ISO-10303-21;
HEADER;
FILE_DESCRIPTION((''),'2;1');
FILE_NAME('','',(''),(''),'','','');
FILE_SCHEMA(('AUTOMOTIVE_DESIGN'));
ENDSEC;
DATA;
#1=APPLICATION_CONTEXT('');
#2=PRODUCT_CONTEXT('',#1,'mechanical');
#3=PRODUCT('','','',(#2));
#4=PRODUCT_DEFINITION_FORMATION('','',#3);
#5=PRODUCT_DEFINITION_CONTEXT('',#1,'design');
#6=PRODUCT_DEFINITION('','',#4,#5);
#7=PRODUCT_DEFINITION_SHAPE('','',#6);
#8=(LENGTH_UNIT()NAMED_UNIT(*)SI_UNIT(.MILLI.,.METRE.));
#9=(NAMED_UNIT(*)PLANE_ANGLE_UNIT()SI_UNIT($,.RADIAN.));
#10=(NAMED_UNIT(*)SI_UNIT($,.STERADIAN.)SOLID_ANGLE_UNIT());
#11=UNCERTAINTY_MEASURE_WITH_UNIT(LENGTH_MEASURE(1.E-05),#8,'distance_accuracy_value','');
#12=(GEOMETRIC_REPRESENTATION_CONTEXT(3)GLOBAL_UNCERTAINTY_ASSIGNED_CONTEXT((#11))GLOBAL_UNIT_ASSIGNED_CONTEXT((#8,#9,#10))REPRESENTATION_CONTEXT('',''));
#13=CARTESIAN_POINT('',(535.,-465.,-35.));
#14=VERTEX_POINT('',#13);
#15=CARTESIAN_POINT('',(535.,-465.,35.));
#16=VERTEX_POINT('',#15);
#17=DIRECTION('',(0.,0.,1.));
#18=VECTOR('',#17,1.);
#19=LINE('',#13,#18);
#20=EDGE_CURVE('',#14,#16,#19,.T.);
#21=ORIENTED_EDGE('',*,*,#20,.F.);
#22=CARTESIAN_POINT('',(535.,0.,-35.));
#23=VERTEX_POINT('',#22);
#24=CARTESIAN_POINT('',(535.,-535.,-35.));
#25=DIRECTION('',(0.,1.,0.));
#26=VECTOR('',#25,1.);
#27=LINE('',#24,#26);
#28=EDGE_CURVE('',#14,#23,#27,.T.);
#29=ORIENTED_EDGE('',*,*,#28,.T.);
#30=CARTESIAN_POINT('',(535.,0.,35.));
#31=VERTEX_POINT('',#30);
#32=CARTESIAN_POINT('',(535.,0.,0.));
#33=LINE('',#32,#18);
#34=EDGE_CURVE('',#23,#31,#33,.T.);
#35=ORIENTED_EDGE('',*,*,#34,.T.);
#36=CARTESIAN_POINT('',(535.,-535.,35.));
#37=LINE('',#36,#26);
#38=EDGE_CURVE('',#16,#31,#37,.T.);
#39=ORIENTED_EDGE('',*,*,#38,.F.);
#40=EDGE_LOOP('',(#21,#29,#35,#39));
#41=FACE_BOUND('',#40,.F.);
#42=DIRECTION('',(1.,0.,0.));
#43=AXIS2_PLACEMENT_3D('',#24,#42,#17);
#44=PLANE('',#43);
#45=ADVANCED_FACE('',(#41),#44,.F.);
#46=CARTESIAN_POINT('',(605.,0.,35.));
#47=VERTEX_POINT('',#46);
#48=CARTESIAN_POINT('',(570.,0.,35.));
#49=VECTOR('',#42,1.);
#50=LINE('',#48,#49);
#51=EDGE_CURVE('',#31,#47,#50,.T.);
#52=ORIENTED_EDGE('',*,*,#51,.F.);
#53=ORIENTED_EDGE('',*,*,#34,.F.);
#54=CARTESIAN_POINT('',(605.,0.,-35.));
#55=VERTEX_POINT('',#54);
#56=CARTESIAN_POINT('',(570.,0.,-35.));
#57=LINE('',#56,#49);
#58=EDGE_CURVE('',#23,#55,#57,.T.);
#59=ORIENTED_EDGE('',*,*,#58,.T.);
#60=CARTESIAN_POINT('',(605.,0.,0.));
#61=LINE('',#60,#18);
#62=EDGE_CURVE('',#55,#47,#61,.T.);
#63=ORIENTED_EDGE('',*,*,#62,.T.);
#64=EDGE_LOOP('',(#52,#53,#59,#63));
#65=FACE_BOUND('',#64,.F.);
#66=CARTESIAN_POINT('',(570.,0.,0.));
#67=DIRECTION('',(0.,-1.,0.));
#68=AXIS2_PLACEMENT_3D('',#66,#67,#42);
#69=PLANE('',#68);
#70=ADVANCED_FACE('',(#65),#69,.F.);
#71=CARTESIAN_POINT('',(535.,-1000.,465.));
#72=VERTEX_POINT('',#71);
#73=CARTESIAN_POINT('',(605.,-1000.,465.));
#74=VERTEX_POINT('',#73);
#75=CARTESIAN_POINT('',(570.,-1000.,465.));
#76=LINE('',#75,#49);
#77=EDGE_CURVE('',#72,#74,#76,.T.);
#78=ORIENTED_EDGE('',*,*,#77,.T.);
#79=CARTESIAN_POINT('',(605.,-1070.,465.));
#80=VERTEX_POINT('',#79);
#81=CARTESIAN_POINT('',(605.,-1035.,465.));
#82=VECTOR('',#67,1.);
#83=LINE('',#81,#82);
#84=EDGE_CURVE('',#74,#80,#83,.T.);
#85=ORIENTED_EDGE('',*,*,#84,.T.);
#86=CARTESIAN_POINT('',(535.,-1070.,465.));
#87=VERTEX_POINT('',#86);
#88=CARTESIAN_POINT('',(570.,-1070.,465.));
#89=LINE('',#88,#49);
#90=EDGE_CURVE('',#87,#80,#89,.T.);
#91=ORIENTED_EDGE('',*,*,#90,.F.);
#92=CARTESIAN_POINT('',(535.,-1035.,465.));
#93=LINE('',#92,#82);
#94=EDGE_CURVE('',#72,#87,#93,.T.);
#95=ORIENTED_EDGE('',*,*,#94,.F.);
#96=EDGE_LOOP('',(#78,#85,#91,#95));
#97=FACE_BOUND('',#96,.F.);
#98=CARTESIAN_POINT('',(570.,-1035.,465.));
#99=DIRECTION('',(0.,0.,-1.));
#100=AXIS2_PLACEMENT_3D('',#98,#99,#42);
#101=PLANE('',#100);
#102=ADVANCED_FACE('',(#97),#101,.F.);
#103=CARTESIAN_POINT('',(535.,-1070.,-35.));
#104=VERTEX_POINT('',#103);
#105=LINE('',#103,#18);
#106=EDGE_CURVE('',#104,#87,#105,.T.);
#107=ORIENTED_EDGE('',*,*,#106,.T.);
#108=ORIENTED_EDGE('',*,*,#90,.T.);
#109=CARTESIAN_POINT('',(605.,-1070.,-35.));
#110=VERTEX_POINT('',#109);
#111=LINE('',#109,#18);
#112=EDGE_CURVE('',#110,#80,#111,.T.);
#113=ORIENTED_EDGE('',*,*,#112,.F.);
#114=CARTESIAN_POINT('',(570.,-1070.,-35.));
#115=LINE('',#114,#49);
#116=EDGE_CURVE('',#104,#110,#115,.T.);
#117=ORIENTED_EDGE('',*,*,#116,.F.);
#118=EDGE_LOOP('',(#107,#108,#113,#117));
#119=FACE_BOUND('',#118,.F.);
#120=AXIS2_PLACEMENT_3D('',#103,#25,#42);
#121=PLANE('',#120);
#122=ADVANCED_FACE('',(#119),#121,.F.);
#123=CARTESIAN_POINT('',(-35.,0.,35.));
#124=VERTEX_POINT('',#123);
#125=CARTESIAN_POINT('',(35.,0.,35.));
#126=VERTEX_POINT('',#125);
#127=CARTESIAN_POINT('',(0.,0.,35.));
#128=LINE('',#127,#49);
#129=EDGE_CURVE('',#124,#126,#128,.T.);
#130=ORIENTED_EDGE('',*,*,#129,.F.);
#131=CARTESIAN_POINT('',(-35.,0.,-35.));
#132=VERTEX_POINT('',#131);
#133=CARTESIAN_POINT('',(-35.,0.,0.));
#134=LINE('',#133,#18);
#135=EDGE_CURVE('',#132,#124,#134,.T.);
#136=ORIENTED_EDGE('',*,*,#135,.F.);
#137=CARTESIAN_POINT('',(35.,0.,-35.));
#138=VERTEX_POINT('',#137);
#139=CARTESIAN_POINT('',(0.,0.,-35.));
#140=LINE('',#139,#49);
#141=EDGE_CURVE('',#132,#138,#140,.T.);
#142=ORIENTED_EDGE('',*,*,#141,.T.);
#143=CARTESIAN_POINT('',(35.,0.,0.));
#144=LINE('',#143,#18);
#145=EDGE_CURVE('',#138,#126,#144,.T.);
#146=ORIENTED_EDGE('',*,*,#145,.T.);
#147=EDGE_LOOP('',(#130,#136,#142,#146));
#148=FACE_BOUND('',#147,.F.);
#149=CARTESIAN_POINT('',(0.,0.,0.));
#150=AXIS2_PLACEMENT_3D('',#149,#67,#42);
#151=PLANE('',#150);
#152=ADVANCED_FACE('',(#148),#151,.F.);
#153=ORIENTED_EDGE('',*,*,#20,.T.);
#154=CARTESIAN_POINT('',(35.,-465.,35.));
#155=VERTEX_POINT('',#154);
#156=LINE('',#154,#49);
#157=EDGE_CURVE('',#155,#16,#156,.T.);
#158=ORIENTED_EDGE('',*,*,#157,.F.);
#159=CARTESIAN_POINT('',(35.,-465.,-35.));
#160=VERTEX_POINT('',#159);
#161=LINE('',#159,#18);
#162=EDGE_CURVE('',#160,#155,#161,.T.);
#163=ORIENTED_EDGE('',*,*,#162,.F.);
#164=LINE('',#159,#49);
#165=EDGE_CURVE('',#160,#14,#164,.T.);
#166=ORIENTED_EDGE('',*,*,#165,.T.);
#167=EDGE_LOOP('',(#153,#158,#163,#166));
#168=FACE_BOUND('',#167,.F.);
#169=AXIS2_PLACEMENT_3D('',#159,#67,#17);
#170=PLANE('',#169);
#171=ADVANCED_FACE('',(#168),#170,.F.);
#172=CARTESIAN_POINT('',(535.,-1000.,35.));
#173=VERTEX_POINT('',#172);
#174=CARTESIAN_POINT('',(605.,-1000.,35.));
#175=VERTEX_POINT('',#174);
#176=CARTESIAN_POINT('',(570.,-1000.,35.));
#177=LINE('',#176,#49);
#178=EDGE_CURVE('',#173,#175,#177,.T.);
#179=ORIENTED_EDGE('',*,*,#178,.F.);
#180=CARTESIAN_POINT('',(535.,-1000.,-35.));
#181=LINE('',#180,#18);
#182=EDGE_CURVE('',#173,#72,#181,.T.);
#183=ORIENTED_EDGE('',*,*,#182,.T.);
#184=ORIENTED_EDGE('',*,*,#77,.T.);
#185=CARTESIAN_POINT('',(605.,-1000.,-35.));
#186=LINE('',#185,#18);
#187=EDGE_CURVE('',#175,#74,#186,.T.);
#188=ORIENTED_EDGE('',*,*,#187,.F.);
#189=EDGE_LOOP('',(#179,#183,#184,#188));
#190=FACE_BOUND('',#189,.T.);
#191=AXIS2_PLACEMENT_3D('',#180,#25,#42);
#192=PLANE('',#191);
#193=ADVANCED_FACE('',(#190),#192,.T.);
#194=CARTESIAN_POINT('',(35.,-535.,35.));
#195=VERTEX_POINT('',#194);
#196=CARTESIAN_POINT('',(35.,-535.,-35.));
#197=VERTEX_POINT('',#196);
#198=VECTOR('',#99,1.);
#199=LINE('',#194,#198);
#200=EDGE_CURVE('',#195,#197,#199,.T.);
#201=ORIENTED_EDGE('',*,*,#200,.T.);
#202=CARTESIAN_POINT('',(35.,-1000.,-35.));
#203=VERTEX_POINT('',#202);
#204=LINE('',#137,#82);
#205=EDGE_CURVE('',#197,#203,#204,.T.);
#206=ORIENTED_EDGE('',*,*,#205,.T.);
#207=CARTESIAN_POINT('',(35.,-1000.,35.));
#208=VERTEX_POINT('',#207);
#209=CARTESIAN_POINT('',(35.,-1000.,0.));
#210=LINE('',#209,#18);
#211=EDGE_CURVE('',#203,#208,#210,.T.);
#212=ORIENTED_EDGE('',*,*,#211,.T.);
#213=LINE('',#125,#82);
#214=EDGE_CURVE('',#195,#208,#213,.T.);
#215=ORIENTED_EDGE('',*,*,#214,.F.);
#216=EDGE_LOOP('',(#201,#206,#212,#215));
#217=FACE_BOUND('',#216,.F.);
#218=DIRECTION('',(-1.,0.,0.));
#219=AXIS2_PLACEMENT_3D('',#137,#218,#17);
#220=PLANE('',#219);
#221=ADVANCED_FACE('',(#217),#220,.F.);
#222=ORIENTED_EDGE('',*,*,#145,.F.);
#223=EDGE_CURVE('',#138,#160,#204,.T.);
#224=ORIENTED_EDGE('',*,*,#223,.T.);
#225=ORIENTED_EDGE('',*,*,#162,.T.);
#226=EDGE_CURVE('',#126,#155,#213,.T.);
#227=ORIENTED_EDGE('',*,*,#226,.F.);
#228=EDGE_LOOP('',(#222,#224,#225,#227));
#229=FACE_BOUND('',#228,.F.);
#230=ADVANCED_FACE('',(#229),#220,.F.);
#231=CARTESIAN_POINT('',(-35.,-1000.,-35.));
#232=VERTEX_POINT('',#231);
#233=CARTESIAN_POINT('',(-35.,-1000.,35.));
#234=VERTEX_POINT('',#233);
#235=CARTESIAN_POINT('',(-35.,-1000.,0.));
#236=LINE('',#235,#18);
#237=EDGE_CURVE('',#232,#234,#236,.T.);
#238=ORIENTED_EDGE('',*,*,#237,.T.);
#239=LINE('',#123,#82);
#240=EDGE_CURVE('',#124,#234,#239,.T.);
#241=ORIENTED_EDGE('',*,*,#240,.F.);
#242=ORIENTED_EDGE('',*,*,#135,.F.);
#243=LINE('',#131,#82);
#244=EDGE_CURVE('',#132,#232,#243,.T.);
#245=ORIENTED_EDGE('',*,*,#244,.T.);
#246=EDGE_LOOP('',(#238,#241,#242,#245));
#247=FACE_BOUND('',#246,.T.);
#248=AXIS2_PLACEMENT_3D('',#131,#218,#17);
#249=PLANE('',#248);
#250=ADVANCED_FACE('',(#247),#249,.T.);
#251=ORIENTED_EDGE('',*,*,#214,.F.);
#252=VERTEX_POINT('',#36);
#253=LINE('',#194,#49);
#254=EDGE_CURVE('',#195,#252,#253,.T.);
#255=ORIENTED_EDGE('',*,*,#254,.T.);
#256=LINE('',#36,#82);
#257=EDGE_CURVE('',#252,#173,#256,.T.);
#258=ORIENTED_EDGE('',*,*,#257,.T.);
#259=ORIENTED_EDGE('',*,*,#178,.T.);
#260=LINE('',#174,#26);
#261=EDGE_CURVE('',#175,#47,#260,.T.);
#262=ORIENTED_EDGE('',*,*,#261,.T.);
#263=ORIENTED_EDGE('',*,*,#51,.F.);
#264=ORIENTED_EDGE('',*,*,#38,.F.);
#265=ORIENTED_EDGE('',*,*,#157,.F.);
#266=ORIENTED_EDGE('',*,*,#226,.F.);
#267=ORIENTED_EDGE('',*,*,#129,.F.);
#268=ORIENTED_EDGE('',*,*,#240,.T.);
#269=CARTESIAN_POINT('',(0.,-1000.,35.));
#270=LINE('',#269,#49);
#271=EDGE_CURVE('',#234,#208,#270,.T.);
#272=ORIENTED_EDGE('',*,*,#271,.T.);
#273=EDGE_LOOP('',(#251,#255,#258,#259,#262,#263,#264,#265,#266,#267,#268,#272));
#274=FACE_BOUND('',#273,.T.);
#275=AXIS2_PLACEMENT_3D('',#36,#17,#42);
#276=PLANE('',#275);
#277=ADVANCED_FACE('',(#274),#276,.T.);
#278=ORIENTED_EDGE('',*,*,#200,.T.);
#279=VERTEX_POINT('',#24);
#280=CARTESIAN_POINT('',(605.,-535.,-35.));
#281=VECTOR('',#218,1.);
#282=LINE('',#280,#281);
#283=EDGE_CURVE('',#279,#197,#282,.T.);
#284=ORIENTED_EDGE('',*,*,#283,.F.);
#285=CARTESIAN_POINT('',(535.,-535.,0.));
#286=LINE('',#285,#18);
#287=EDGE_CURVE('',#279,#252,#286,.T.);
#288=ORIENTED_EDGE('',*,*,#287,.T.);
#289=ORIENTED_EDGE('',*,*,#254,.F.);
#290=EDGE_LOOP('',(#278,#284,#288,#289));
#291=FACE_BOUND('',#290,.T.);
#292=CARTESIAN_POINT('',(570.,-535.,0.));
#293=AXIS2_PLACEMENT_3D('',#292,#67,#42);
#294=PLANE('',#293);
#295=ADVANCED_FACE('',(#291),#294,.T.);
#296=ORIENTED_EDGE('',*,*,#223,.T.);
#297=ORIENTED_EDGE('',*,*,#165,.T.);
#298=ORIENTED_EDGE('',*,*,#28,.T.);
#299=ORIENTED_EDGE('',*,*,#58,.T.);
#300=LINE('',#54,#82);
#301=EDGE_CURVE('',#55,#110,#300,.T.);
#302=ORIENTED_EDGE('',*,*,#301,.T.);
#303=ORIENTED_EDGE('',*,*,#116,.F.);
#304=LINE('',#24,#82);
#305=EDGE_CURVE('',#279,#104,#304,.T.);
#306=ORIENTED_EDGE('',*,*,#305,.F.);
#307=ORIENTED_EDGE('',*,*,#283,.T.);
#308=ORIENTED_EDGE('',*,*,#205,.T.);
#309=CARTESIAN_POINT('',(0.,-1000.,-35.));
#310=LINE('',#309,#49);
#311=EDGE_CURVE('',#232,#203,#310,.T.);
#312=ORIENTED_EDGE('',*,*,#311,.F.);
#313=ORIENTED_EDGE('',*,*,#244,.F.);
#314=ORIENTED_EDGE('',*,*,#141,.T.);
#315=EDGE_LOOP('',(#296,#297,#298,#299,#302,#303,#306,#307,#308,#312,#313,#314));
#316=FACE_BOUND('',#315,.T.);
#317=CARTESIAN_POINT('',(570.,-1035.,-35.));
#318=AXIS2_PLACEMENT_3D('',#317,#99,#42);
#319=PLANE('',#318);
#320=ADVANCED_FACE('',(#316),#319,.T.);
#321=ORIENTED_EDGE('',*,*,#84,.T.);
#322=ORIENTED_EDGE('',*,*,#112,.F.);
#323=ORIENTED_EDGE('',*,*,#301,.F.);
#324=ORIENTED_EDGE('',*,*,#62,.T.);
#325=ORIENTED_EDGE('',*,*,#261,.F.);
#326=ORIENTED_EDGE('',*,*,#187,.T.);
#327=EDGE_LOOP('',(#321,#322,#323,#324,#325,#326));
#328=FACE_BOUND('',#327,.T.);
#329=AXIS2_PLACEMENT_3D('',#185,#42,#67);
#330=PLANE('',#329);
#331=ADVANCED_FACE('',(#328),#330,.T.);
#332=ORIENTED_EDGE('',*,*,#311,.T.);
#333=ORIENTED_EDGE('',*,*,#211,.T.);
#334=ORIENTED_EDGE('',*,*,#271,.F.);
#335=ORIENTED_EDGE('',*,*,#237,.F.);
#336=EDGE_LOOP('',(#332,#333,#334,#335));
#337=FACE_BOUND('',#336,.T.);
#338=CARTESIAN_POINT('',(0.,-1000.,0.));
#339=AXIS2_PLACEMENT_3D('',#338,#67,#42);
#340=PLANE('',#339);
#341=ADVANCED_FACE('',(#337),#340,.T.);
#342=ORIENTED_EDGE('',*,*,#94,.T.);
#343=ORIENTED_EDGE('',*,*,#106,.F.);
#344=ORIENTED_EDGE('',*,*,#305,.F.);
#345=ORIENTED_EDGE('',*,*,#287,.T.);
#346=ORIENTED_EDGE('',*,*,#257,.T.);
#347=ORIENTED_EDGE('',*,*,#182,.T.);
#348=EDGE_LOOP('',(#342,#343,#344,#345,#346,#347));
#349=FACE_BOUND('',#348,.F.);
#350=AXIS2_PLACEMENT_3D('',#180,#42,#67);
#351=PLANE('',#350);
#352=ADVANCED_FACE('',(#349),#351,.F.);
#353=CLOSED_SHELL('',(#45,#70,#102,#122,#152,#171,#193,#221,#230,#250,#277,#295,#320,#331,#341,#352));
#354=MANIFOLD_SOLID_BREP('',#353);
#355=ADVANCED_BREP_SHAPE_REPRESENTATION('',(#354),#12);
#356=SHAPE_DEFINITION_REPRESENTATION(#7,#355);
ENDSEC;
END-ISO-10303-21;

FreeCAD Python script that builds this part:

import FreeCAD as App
import Part
import Sketcher


def add_polygon(sketch, points):
    """Adds a closed chain of lines whose ends are joined by coincident constraints."""
    first, n = sketch.GeometryCount, len(points)
    for a, b in zip(points, points[1:] + points[:1]):
        sketch.addGeometry(Part.LineSegment(App.Vector(*a, 0), App.Vector(*b, 0)), False)
    for i in range(n):
        sketch.addConstraint(Sketcher.Constraint("Coincident", first + i, 2, first + (i + 1) % n, 1))

doc = App.newDocument("Part")
params = doc.addObject("Spreadsheet::Sheet", "Params")
for row, (alias, value) in enumerate([
    ("sketch1_width", "70 mm"),
    ("pad1_length", "1000 mm"),
    ("sketch2_width", "70 mm"),
    ("pad2_length", "500 mm"),
    ("sketch3_width", "70 mm"),
    ("pad3_length", "535 mm"),
    ("sketch4_width", "70 mm"),
    ("pad4_length", "465 mm"),
    ("sketch5_width", "70 mm"),
    ("pad5_length", "500 mm"),
], start=1):
    params.set(f"A{row}", alias)
    params.set(f"B{row}", "=" + value)
    params.setAlias(f"B{row}", alias)

body = doc.addObject("PartDesign::Body", "Body")

# Sketch on XZ plane
sketch1 = doc.addObject("Sketcher::SketchObject", "Sketch")
body.addObject(sketch1)
sketch1.AttachmentSupport = (doc.XZ_Plane, [""])
sketch1.MapMode = "FlatFace"
add_polygon(sketch1, [(-35, 35), (-35, -35), (35, -35), (35, 35)])  # lines 0-3
sketch1.addConstraint([
    Sketcher.Constraint("Vertical", 0),
    Sketcher.Constraint("Horizontal", 1),
    Sketcher.Constraint("Vertical", 2),
    Sketcher.Constraint("Horizontal", 3),
    Sketcher.Constraint("Symmetric", 0, 2, 2, 2, -1, 1),
    Sketcher.Constraint("Equal", 3, 0),
    Sketcher.Constraint("DistanceX", 1, 1, 1, 2, 70.0),
])
sketch1.setExpression("Constraints[10]", "Params.sketch1_width")
pad1 = doc.addObject("PartDesign::Pad", "Pad")
body.addObject(pad1)
pad1.Profile = sketch1
pad1.setExpression("Length", "Params.pad1_length")

# Sketch on YZ plane
sketch2 = doc.addObject("Sketcher::SketchObject", "Sketch001")
body.addObject(sketch2)
sketch2.AttachmentSupport = (doc.YZ_Plane, [""])
sketch2.MapMode = "FlatFace"
sketch2.AttachmentOffset = App.Placement(App.Vector(0, 0, 35), App.Rotation())
add_polygon(sketch2, [(-465, 35), (-535, 35), (-535, -35), (-465, -35)])  # lines 0-3
sketch2.addConstraint([
    Sketcher.Constraint("Horizontal", 0),
    Sketcher.Constraint("Vertical", 1),
    Sketcher.Constraint("Horizontal", 2),
    Sketcher.Constraint("Vertical", 3),
    Sketcher.Constraint("Equal", 2, 1),
    Sketcher.Constraint("DistanceX", 0, 2, 0, 1, 70.0),
    Sketcher.Constraint("DistanceX", 0, 2, -1, 1, 535.0),
    Sketcher.Constraint("DistanceY", -1, 1, 0, 2, 35.0),
])
sketch2.setExpression("Constraints[9]", "Params.sketch2_width")
pad2 = doc.addObject("PartDesign::Pad", "Pad001")
body.addObject(pad2)
pad2.Profile = sketch2
pad2.setExpression("Length", "Params.pad2_length")

# Sketch on XZ plane
sketch3 = doc.addObject("Sketcher::SketchObject", "Sketch002")
body.addObject(sketch3)
sketch3.AttachmentSupport = (doc.XZ_Plane, [""])
sketch3.MapMode = "FlatFace"
sketch3.AttachmentOffset = App.Placement(App.Vector(0, 0, 535), App.Rotation())
add_polygon(sketch3, [(535, 35), (535, -35), (605, -35), (605, 35)])  # lines 0-3
sketch3.addConstraint([
    Sketcher.Constraint("Vertical", 0),
    Sketcher.Constraint("Horizontal", 1),
    Sketcher.Constraint("Vertical", 2),
    Sketcher.Constraint("Horizontal", 3),
    Sketcher.Constraint("Equal", 3, 0),
    Sketcher.Constraint("DistanceX", 1, 1, 1, 2, 70.0),
    Sketcher.Constraint("DistanceX", -1, 1, 0, 2, 535.0),
    Sketcher.Constraint("DistanceY", 0, 2, -1, 1, 35.0),
])
sketch3.setExpression("Constraints[9]", "Params.sketch3_width")
pad3 = doc.addObject("PartDesign::Pad", "Pad002")
body.addObject(pad3)
pad3.Profile = sketch3
pad3.setExpression("Length", "Params.pad3_length")
pad3.Reversed = True

# Sketch on XZ plane
sketch4 = doc.addObject("Sketcher::SketchObject", "Sketch003")
body.addObject(sketch4)
sketch4.AttachmentSupport = (doc.XZ_Plane, [""])
sketch4.MapMode = "FlatFace"
sketch4.AttachmentOffset = App.Placement(App.Vector(0, 0, 535), App.Rotation())
add_polygon(sketch4, [(535, 35), (535, -35), (605, -35), (605, 35)])  # lines 0-3
sketch4.addConstraint([
    Sketcher.Constraint("Vertical", 0),
    Sketcher.Constraint("Horizontal", 1),
    Sketcher.Constraint("Vertical", 2),
    Sketcher.Constraint("Horizontal", 3),
    Sketcher.Constraint("Equal", 3, 0),
    Sketcher.Constraint("DistanceX", 1, 1, 1, 2, 70.0),
    Sketcher.Constraint("DistanceX", -1, 1, 0, 2, 535.0),
    Sketcher.Constraint("DistanceY", 0, 2, -1, 1, 35.0),
])
sketch4.setExpression("Constraints[9]", "Params.sketch4_width")
pad4 = doc.addObject("PartDesign::Pad", "Pad003")
body.addObject(pad4)
pad4.Profile = sketch4
pad4.setExpression("Length", "Params.pad4_length")

# Sketch on XY plane
sketch5 = doc.addObject("Sketcher::SketchObject", "Sketch004")
body.addObject(sketch5)
sketch5.AttachmentSupport = (doc.XY_Plane, [""])
sketch5.MapMode = "FlatFace"
sketch5.AttachmentOffset = App.Placement(App.Vector(0, 0, -35), App.Rotation())
add_polygon(sketch5, [(535, -1070), (535, -1000), (605, -1000), (605, -1070)])  # lines 0-3
sketch5.addConstraint([
    Sketcher.Constraint("Vertical", 0),
    Sketcher.Constraint("Horizontal", 1),
    Sketcher.Constraint("Vertical", 2),
    Sketcher.Constraint("Horizontal", 3),
    Sketcher.Constraint("Equal", 3, 0),
    Sketcher.Constraint("DistanceX", 1, 1, 1, 2, 70.0),
    Sketcher.Constraint("DistanceX", -1, 1, 0, 2, 535.0),
    Sketcher.Constraint("DistanceY", 0, 2, -1, 1, 1000.0),
])
sketch5.setExpression("Constraints[9]", "Params.sketch5_width")
pad5 = doc.addObject("PartDesign::Pad", "Pad004")
body.addObject(pad5)
pad5.Profile = sketch5
pad5.setExpression("Length", "Params.pad5_length")

doc.recompute()
